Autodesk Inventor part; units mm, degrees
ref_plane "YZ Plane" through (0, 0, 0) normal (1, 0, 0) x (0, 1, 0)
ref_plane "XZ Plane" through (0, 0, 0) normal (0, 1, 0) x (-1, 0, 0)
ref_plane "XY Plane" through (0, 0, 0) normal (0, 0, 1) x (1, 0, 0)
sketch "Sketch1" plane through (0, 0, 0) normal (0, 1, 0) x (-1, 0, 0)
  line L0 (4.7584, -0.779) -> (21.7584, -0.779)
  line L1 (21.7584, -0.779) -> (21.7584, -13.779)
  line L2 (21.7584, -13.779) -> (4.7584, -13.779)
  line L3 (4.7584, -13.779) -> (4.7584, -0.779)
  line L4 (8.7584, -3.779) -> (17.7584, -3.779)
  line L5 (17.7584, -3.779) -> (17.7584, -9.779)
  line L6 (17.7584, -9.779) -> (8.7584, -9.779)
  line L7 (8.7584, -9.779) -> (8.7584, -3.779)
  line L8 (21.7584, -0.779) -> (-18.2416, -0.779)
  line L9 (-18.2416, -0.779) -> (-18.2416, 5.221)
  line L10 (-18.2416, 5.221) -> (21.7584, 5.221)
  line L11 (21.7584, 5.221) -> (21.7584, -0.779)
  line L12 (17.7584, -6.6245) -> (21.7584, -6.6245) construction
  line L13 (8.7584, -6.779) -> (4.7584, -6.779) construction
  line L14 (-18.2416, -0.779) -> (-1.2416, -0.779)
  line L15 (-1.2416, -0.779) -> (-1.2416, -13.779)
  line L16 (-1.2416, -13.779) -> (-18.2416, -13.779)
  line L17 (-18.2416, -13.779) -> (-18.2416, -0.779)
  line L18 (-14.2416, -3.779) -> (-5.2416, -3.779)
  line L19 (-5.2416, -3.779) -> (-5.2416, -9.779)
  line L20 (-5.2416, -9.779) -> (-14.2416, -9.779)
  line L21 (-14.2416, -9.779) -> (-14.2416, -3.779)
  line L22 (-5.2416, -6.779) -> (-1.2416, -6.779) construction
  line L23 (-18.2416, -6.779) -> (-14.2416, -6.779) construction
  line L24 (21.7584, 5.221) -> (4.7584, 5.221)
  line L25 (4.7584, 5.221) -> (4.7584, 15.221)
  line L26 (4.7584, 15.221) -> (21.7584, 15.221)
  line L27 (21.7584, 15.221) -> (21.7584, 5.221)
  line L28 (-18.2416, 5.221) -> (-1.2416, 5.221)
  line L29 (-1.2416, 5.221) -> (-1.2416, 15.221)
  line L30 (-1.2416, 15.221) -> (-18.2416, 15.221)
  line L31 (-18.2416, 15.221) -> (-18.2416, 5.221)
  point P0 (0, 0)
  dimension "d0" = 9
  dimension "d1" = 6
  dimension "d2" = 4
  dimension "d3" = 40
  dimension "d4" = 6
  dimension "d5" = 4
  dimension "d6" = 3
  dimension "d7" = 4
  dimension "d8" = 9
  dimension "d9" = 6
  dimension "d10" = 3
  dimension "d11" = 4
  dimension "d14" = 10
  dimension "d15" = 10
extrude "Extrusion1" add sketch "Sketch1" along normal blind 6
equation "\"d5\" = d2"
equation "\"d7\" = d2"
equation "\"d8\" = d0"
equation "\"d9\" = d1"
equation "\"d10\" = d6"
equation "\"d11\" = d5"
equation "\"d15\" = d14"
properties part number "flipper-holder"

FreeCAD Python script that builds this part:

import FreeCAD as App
import Part
import Sketcher
from FreeCAD import Vector

doc = App.newDocument("Part")
body = doc.addObject("PartDesign::Body", "Body")

sketch1 = body.newObject("Sketcher::SketchObject", "Sketch")
sketch1.AttachmentSupport = (doc.getObject("XZ_Plane"), [""])
sketch1.MapMode = "FlatFace"
sketch1.addGeometry(Part.LineSegment(Vector(1, -1, 0), Vector(-5, -1, 0)), False)
sketch1.addGeometry(Part.LineSegment(Vector(-5, -1, 0), Vector(-5, -14, 0)), False)
sketch1.addGeometry(Part.LineSegment(Vector(-5, -14, 0), Vector(-22, -14, 0)), False)
sketch1.addGeometry(Part.LineSegment(Vector(-22, -14, 0), Vector(-22, 15, 0)), False)
sketch1.addGeometry(Part.LineSegment(Vector(-22, 15, 0), Vector(-5, 15, 0)), False)
sketch1.addGeometry(Part.LineSegment(Vector(-5, 15, 0), Vector(-5, 5, 0)), False)
sketch1.addGeometry(Part.LineSegment(Vector(-5, 5, 0), Vector(1, 5, 0)), False)
sketch1.addGeometry(Part.LineSegment(Vector(1, 5, 0), Vector(1, 15, 0)), False)
sketch1.addGeometry(Part.LineSegment(Vector(1, 15, 0), Vector(18, 15, 0)), False)
sketch1.addGeometry(Part.LineSegment(Vector(18, 15, 0), Vector(18, -14, 0)), False)
sketch1.addGeometry(Part.LineSegment(Vector(18, -14, 0), Vector(1, -14, 0)), False)
sketch1.addGeometry(Part.LineSegment(Vector(1, -14, 0), Vector(1, -1, 0)), False)
sketch1.addGeometry(Part.LineSegment(Vector(14, -4, 0), Vector(5, -4, 0)), False)
sketch1.addGeometry(Part.LineSegment(Vector(5, -4, 0), Vector(5, -10, 0)), False)
sketch1.addGeometry(Part.LineSegment(Vector(5, -10, 0), Vector(14, -10, 0)), False)
sketch1.addGeometry(Part.LineSegment(Vector(14, -10, 0), Vector(14, -4, 0)), False)
sketch1.addGeometry(Part.LineSegment(Vector(-9, -4, 0), Vector(-18, -4, 0)), False)
sketch1.addGeometry(Part.LineSegment(Vector(-18, -4, 0), Vector(-18, -10, 0)), False)
sketch1.addGeometry(Part.LineSegment(Vector(-18, -10, 0), Vector(-9, -10, 0)), False)
sketch1.addGeometry(Part.LineSegment(Vector(-9, -10, 0), Vector(-9, -4, 0)), False)
sketch1.addConstraint(Sketcher.Constraint("Coincident", 0, 2, 1, 1))
sketch1.addConstraint(Sketcher.Constraint("Coincident", 1, 2, 2, 1))
sketch1.addConstraint(Sketcher.Constraint("Coincident", 2, 2, 3, 1))
sketch1.addConstraint(Sketcher.Constraint("Coincident", 3, 2, 4, 1))
sketch1.addConstraint(Sketcher.Constraint("Coincident", 4, 2, 5, 1))
sketch1.addConstraint(Sketcher.Constraint("Coincident", 5, 2, 6, 1))
sketch1.addConstraint(Sketcher.Constraint("Coincident", 6, 2, 7, 1))
sketch1.addConstraint(Sketcher.Constraint("Coincident", 7, 2, 8, 1))
sketch1.addConstraint(Sketcher.Constraint("Coincident", 8, 2, 9, 1))
sketch1.addConstraint(Sketcher.Constraint("Coincident", 9, 2, 10, 1))
sketch1.addConstraint(Sketcher.Constraint("Coincident", 10, 2, 11, 1))
sketch1.addConstraint(Sketcher.Constraint("Coincident", 11, 2, 0, 1))
sketch1.addConstraint(Sketcher.Constraint("Coincident", 12, 2, 13, 1))
sketch1.addConstraint(Sketcher.Constraint("Coincident", 13, 2, 14, 1))
sketch1.addConstraint(Sketcher.Constraint("Coincident", 14, 2, 15, 1))
sketch1.addConstraint(Sketcher.Constraint("Coincident", 15, 2, 12, 1))
sketch1.addConstraint(Sketcher.Constraint("Coincident", 16, 2, 17, 1))
sketch1.addConstraint(Sketcher.Constraint("Coincident", 17, 2, 18, 1))
sketch1.addConstraint(Sketcher.Constraint("Coincident", 18, 2, 19, 1))
sketch1.addConstraint(Sketcher.Constraint("Coincident", 19, 2, 16, 1))
sketch1.addConstraint(Sketcher.Constraint("Horizontal", 0))
sketch1.addConstraint(Sketcher.Constraint("Vertical", 1))
sketch1.addConstraint(Sketcher.Constraint("Horizontal", 2))
sketch1.addConstraint(Sketcher.Constraint("Vertical", 3))
sketch1.addConstraint(Sketcher.Constraint("Horizontal", 4))
sketch1.addConstraint(Sketcher.Constraint("Vertical", 5))
sketch1.addConstraint(Sketcher.Constraint("Horizontal", 6))
sketch1.addConstraint(Sketcher.Constraint("Vertical", 7))
sketch1.addConstraint(Sketcher.Constraint("Horizontal", 8))
sketch1.addConstraint(Sketcher.Constraint("Vertical", 9))
sketch1.addConstraint(Sketcher.Constraint("Horizontal", 10))
sketch1.addConstraint(Sketcher.Constraint("Vertical", 11))
sketch1.addConstraint(Sketcher.Constraint("Horizontal", 12))
sketch1.addConstraint(Sketcher.Constraint("Vertical", 13))
sketch1.addConstraint(Sketcher.Constraint("Horizontal", 14))
sketch1.addConstraint(Sketcher.Constraint("Vertical", 15))
sketch1.addConstraint(Sketcher.Constraint("Horizontal", 16))
sketch1.addConstraint(Sketcher.Constraint("Vertical", 17))
sketch1.addConstraint(Sketcher.Constraint("Horizontal", 18))
sketch1.addConstraint(Sketcher.Constraint("Vertical", 19))
sketch1.addConstraint(Sketcher.Constraint("Horizontal", 4, 2, 7, 2))
sketch1.addConstraint(Sketcher.Constraint("Horizontal", 2, 2, 9, 2))
sketch1.addConstraint(Sketcher.Constraint("Horizontal", 15, 2, 16, 2))
sketch1.addConstraint(Sketcher.Constraint("Horizontal", 14, 2, 17, 2))
sketch1.addConstraint(Sketcher.Constraint("Vertical", 1, 2, 4, 2))
sketch1.addConstraint(Sketcher.Constraint("Vertical", 7, 2, 10, 2))
sketch1.addConstraint(Sketcher.Constraint("Equal", 4, 8))
sketch1.addConstraint(Sketcher.Constraint("Equal", 14, 16))
sketch1.addConstraint(Sketcher.Constraint("Equal", 6, 13))
sketch1.addConstraint(Sketcher.Constraint("DistanceX", 0, 2, 0, 1, 6.0))
sketch1.addConstraint(Sketcher.Constraint("DistanceX", 12, 2, 12, 1, 9.0))
sketch1.addConstraint(Sketcher.Constraint("DistanceY", 5, 2, 5, 1, 10.0))
sketch1.addConstraint(Sketcher.Constraint("DistanceY", 0, 2, 5, 2, 6.0))
sketch1.addConstraint(Sketcher.Constraint("DistanceX", 11, 2, 12, 2, 4.0))
sketch1.addConstraint(Sketcher.Constraint("DistanceY", 12, 2, 11, 2, 3.0))
sketch1.addConstraint(Sketcher.Constraint("DistanceY", 10, 2, 12, 2, 10.0))
sketch1.addConstraint(Sketcher.Constraint("DistanceX", 14, 2, 9, 2, 4.0))
sketch1.addConstraint(Sketcher.Constraint("DistanceX", 2, 2, 16, 2, 4.0))
sketch1.addConstraint(Sketcher.Constraint("DistanceY", 0, 2, -1, 1, 0.779))
sketch1.addConstraint(Sketcher.Constraint("DistanceX", 0, 2, -1, 1, 4.7584))
pad1 = body.newObject("PartDesign::Pad", "Pad")
pad1.Profile = sketch1
pad1.Length = 6
pad1.Reversed = True

doc.recompute()
